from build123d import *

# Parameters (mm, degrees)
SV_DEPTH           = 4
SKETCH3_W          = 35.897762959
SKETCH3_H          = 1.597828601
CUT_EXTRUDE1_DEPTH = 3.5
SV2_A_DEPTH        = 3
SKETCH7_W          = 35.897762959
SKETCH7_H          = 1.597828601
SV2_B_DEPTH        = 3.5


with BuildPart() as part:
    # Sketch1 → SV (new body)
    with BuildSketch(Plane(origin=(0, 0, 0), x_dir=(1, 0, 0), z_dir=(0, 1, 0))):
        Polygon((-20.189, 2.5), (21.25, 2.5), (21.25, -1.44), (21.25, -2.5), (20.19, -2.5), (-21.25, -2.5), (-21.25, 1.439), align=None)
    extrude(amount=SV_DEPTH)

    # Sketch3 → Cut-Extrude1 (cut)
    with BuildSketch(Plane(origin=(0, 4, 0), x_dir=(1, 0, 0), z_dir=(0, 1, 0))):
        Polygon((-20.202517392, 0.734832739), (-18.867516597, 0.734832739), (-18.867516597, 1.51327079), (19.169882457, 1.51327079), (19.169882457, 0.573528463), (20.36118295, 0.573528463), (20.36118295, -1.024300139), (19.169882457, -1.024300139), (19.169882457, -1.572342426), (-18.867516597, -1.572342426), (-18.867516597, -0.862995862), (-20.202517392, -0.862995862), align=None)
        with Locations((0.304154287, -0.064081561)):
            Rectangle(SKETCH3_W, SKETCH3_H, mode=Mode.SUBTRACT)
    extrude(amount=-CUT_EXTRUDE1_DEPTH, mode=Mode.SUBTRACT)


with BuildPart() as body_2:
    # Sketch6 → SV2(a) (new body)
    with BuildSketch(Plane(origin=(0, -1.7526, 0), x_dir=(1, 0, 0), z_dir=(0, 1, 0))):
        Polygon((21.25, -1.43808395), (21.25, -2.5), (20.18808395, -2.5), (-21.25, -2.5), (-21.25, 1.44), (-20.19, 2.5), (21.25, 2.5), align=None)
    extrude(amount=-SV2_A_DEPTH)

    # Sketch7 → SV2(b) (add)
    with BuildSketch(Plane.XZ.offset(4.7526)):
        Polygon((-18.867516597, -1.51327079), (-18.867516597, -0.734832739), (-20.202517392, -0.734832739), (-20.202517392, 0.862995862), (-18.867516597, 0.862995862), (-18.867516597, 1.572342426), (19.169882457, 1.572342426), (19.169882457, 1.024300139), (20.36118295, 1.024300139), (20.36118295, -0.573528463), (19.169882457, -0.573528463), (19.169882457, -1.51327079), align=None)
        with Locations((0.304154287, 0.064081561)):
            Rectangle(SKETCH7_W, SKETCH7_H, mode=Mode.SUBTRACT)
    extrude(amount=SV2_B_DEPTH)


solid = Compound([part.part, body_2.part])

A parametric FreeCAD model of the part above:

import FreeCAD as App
import Part
import Sketcher
Q = App.Units.Quantity

doc = App.newDocument("Part")
params = doc.addObject("Spreadsheet::Sheet", "Params")
for row, (alias, value) in enumerate([
    ("sketch1_height", "5 mm"),
    ("sketch1_width", "42.5 mm"),
    ("pad1_length", "4 mm"),
    ("pocket1_length", "3.5 mm"),
    ("sketch3_height", "5 mm"),
    ("sketch3_width", "42.5 mm"),
    ("sketch3_width2", "41.44 mm"),
    ("pad2_length", "3 mm"),
    ("pad3_length", "3.5 mm"),
], start=1):
    params.set(f"A{row}", alias)
    params.set(f"B{row}", "=" + value)
    params.setAlias(f"B{row}", alias)

body = doc.addObject("PartDesign::Body", "Body")

# Sketch on XZ plane
sketch1 = body.newObject("Sketcher::SketchObject", "Sketch")
sketch1.AttachmentSupport = (doc.getObject("XZ_Plane"), [""])
sketch1.MapMode = "FlatFace"
sketch1.addGeometry([
    Part.LineSegment(App.Vector(21.25, -2.5, 0), App.Vector(-20.189, -2.5, 0)),  # 0
    Part.LineSegment(App.Vector(-20.189, -2.5, 0), App.Vector(-21.25, -1.439, 0)),  # 1
    Part.LineSegment(App.Vector(-21.25, -1.439, 0), App.Vector(-21.25, 2.5, 0)),  # 2
    Part.LineSegment(App.Vector(-21.25, 2.5, 0), App.Vector(21.25, 2.5, 0)),  # 3
    Part.LineSegment(App.Vector(21.25, 2.5, 0), App.Vector(21.25, -2.5, 0)),  # 4
], False)
sketch1.addConstraint([
    Sketcher.Constraint("Coincident", 0, 2, 1, 1),
    Sketcher.Constraint("Coincident", 1, 2, 2, 1),
    Sketcher.Constraint("Coincident", 2, 2, 3, 1),
    Sketcher.Constraint("Coincident", 3, 2, 4, 1),
    Sketcher.Constraint("Coincident", 4, 2, 0, 1),
    Sketcher.Constraint("Horizontal", 0),
    Sketcher.Constraint("Vertical", 2),
    Sketcher.Constraint("Horizontal", 3),
    Sketcher.Constraint("Vertical", 4),
    Sketcher.Constraint("Symmetric", 2, 2, 4, 2, -1, 1),
    Sketcher.Constraint("DistanceY", 4, 2, 4, 1, 5.0),
    Sketcher.Constraint("Angle", 1, Q("135 deg")),
    Sketcher.Constraint("DistanceX", 3, 1, 3, 2, 42.5),
    Sketcher.Constraint("DistanceX", 0, 2, 0, 1, 41.439),
])
sketch1.setExpression("Constraints[10]", "Params.sketch1_height")
sketch1.setExpression("Constraints[12]", "Params.sketch1_width")
pad1 = body.newObject("PartDesign::Pad", "Pad")
pad1.Profile = sketch1
pad1.setExpression("Length", "Params.pad1_length")
pad1.Reversed = True

# Sketch on XZ plane
sketch2 = body.newObject("Sketcher::SketchObject", "Sketch001")
sketch2.AttachmentSupport = (doc.getObject("XZ_Plane"), [""])
sketch2.MapMode = "FlatFace"
sketch2.AttachmentOffset = App.Placement(App.Vector(0, 0, -4), App.Rotation())
sketch2.addGeometry([
    Part.LineSegment(App.Vector(-18.867517, -0.734833, 0), App.Vector(-20.202517, -0.734833, 0)),  # 0
    Part.LineSegment(App.Vector(-20.202517, -0.734833, 0), App.Vector(-20.202517, 0.862996, 0)),  # 1
    Part.LineSegment(App.Vector(-20.202517, 0.862996, 0), App.Vector(-18.867517, 0.862996, 0)),  # 2
    Part.LineSegment(App.Vector(-18.867517, 0.862996, 0), App.Vector(-18.867517, 1.572342, 0)),  # 3
    Part.LineSegment(App.Vector(-18.867517, 1.572342, 0), App.Vector(19.169882, 1.572342, 0)),  # 4
    Part.LineSegment(App.Vector(19.169882, 1.572342, 0), App.Vector(19.169882, 1.0243, 0)),  # 5
    Part.LineSegment(App.Vector(19.169882, 1.0243, 0), App.Vector(20.361183, 1.0243, 0)),  # 6
    Part.LineSegment(App.Vector(20.361183, 1.0243, 0), App.Vector(20.361183, -0.573528, 0)),  # 7
    Part.LineSegment(App.Vector(20.361183, -0.573528, 0), App.Vector(19.169882, -0.573528, 0)),  # 8
    Part.LineSegment(App.Vector(19.169882, -0.573528, 0), App.Vector(19.169882, -1.513271, 0)),  # 9
    Part.LineSegment(App.Vector(19.169882, -1.513271, 0), App.Vector(-18.867517, -1.513271, 0)),  # 10
    Part.LineSegment(App.Vector(-18.867517, -1.513271, 0), App.Vector(-18.867517, -0.734833, 0)),  # 11
    Part.LineSegment(App.Vector(-17.644727, 0.862996, 0), App.Vector(-17.644727, -0.734833, 0)),  # 12
    Part.LineSegment(App.Vector(-17.644727, -0.734833, 0), App.Vector(18.253036, -0.734833, 0)),  # 13
    Part.LineSegment(App.Vector(18.253036, -0.734833, 0), App.Vector(18.253036, 0.862996, 0)),  # 14
    Part.LineSegment(App.Vector(18.253036, 0.862996, 0), App.Vector(-17.644727, 0.862996, 0)),  # 15
], False)
sketch2.addConstraint([
    Sketcher.Constraint("Coincident", 0, 2, 1, 1),
    Sketcher.Constraint("Coincident", 1, 2, 2, 1),
    Sketcher.Constraint("Coincident", 2, 2, 3, 1),
    Sketcher.Constraint("Coincident", 3, 2, 4, 1),
    Sketcher.Constraint("Coincident", 4, 2, 5, 1),
    Sketcher.Constraint("Coincident", 5, 2, 6, 1),
    Sketcher.Constraint("Coincident", 6, 2, 7, 1),
    Sketcher.Constraint("Coincident", 7, 2, 8, 1),
    Sketcher.Constraint("Coincident", 8, 2, 9, 1),
    Sketcher.Constraint("Coincident", 9, 2, 10, 1),
    Sketcher.Constraint("Coincident", 10, 2, 11, 1),
    Sketcher.Constraint("Coincident", 11, 2, 0, 1),
    Sketcher.Constraint("Coincident", 12, 2, 13, 1),
    Sketcher.Constraint("Coincident", 13, 2, 14, 1),
    Sketcher.Constraint("Coincident", 14, 2, 15, 1),
    Sketcher.Constraint("Coincident", 15, 2, 12, 1),
    Sketcher.Constraint("Horizontal", 0),
    Sketcher.Constraint("Vertical", 1),
    Sketcher.Constraint("Horizontal", 2),
    Sketcher.Constraint("Vertical", 3),
    Sketcher.Constraint("Horizontal", 4),
    Sketcher.Constraint("Vertical", 5),
    Sketcher.Constraint("Horizontal", 6),
    Sketcher.Constraint("Vertical", 7),
    Sketcher.Constraint("Horizontal", 8),
    Sketcher.Constraint("Vertical", 9),
    Sketcher.Constraint("Horizontal", 10),
    Sketcher.Constraint("Vertical", 11),
    Sketcher.Constraint("Vertical", 12),
    Sketcher.Constraint("Horizontal", 13),
    Sketcher.Constraint("Vertical", 14),
    Sketcher.Constraint("Horizontal", 15),
    Sketcher.Constraint("Horizontal", 11, 2, 12, 2),
    Sketcher.Constraint("Horizontal", 2, 2, 14, 2),
    Sketcher.Constraint("Vertical", 5, 2, 8, 2),
    Sketcher.Constraint("Vertical", 3, 2, 10, 2),
    Sketcher.Constraint("Equal", 1, 7),
    Sketcher.Constraint("DistanceX", 0, 2, 0, 1, 1.335001),
    Sketcher.Constraint("DistanceX", 4, 1, 4, 2, 38.037399),
    Sketcher.Constraint("DistanceX", 6, 1, 6, 2, 1.1913),
    Sketcher.Constraint("DistanceY", 1, 1, 1, 2, 1.597829),
    Sketcher.Constraint("DistanceY", 11, 1, 11, 2, 0.778438),
    Sketcher.Constraint("DistanceY", -1, 1, 5, 2, 1.0243),
    Sketcher.Constraint("DistanceX", 13, 1, 13, 2, 35.897763),
    Sketcher.Constraint("DistanceY", 3, 1, 3, 2, 0.709347),
    Sketcher.Constraint("DistanceY", 5, 2, 5, 1, 0.548042),
    Sketcher.Constraint("DistanceX", 11, 2, 12, 2, 1.222789),
    Sketcher.Constraint("DistanceX", 0, 2, -1, 1, 20.202517),
])
pocket1 = body.newObject("PartDesign::Pocket", "Pocket")
pocket1.Profile = sketch2
pocket1.setExpression("Length", "Params.pocket1_length")
pocket1.Reversed = True
body2 = doc.addObject("PartDesign::Body", "Body001")

# Sketch on XZ plane
sketch3 = body2.newObject("Sketcher::SketchObject", "Sketch002")
sketch3.AttachmentSupport = (doc.getObject("XZ_Plane001"), [""])
sketch3.MapMode = "FlatFace"
sketch3.AttachmentOffset = App.Placement(App.Vector(0, 0, 1.7526), App.Rotation())
sketch3.addGeometry([
    Part.LineSegment(App.Vector(21.25, 2.5, 0), App.Vector(21.25, -2.5, 0)),  # 0
    Part.LineSegment(App.Vector(21.25, -2.5, 0), App.Vector(-20.19, -2.5, 0)),  # 1
    Part.LineSegment(App.Vector(-20.19, -2.5, 0), App.Vector(-21.25, -1.44, 0)),  # 2
    Part.LineSegment(App.Vector(-21.25, -1.44, 0), App.Vector(-21.25, 2.5, 0)),  # 3
    Part.LineSegment(App.Vector(-21.25, 2.5, 0), App.Vector(21.25, 2.5, 0)),  # 4
], False)
sketch3.addConstraint([
    Sketcher.Constraint("Coincident", 0, 2, 1, 1),
    Sketcher.Constraint("Coincident", 1, 2, 2, 1),
    Sketcher.Constraint("Coincident", 2, 2, 3, 1),
    Sketcher.Constraint("Coincident", 3, 2, 4, 1),
    Sketcher.Constraint("Coincident", 4, 2, 0, 1),
    Sketcher.Constraint("Vertical", 0),
    Sketcher.Constraint("Horizontal", 1),
    Sketcher.Constraint("Vertical", 3),
    Sketcher.Constraint("Horizontal", 4),
    Sketcher.Constraint("Symmetric", 0, 2, 3, 2, -1, 1),
    Sketcher.Constraint("DistanceY", 0, 2, 0, 1, 5.0),
    Sketcher.Constraint("Angle", 2, Q("135 deg")),
    Sketcher.Constraint("DistanceX", 4, 1, 4, 2, 42.5),
    Sketcher.Constraint("DistanceX", 1, 2, 1, 1, 41.44),
])
sketch3.setExpression("Constraints[10]", "Params.sketch3_height")
sketch3.setExpression("Constraints[12]", "Params.sketch3_width")
sketch3.setExpression("Constraints[13]", "Params.sketch3_width2")
pad2 = body2.newObject("PartDesign::Pad", "Pad001")
pad2.Profile = sketch3
pad2.setExpression("Length", "Params.pad2_length")

# Sketch on XZ plane
sketch4 = body2.newObject("Sketcher::SketchObject", "Sketch003")
sketch4.AttachmentSupport = (doc.getObject("XZ_Plane001"), [""])
sketch4.MapMode = "FlatFace"
sketch4.AttachmentOffset = App.Placement(App.Vector(0, 0, 4.7526), App.Rotation())
sketch4.addGeometry([
    Part.LineSegment(App.Vector(-18.867517, -0.734833, 0), App.Vector(-18.867517, -1.513271, 0)),  # 0
    Part.LineSegment(App.Vector(-18.867517, -1.513271, 0), App.Vector(19.169882, -1.513271, 0)),  # 1
    Part.LineSegment(App.Vector(19.169882, -1.513271, 0), App.Vector(19.169882, -0.573528, 0)),  # 2
    Part.LineSegment(App.Vector(19.169882, -0.573528, 0), App.Vector(20.361183, -0.573528, 0)),  # 3
    Part.LineSegment(App.Vector(20.361183, -0.573528, 0), App.Vector(20.361183, 1.0243, 0)),  # 4
    Part.LineSegment(App.Vector(20.361183, 1.0243, 0), App.Vector(19.169882, 1.0243, 0)),  # 5
    Part.LineSegment(App.Vector(19.169882, 1.0243, 0), App.Vector(19.169882, 1.572342, 0)),  # 6
    Part.LineSegment(App.Vector(19.169882, 1.572342, 0), App.Vector(-18.867517, 1.572342, 0)),  # 7
    Part.LineSegment(App.Vector(-18.867517, 1.572342, 0), App.Vector(-18.867517, 0.862996, 0)),  # 8
    Part.LineSegment(App.Vector(-18.867517, 0.862996, 0), App.Vector(-20.202517, 0.862996, 0)),  # 9
    Part.LineSegment(App.Vector(-20.202517, 0.862996, 0), App.Vector(-20.202517, -0.734833, 0)),  # 10
    Part.LineSegment(App.Vector(-20.202517, -0.734833, 0), App.Vector(-18.867517, -0.734833, 0)),  # 11
    Part.LineSegment(App.Vector(-17.644727, -0.734833, 0), App.Vector(-17.644727, 0.862996, 0)),  # 12
    Part.LineSegment(App.Vector(-17.644727, 0.862996, 0), App.Vector(18.253036, 0.862996, 0)),  # 13
    Part.LineSegment(App.Vector(18.253036, 0.862996, 0), App.Vector(18.253036, -0.734833, 0)),  # 14
    Part.LineSegment(App.Vector(18.253036, -0.734833, 0), App.Vector(-17.644727, -0.734833, 0)),  # 15
], False)
sketch4.addConstraint([
    Sketcher.Constraint("Coincident", 0, 2, 1, 1),
    Sketcher.Constraint("Coincident", 1, 2, 2, 1),
    Sketcher.Constraint("Coincident", 2, 2, 3, 1),
    Sketcher.Constraint("Coincident", 3, 2, 4, 1),
    Sketcher.Constraint("Coincident", 4, 2, 5, 1),
    Sketcher.Constraint("Coincident", 5, 2, 6, 1),
    Sketcher.Constraint("Coincident", 6, 2, 7, 1),
    Sketcher.Constraint("Coincident", 7, 2, 8, 1),
    Sketcher.Constraint("Coincident", 8, 2, 9, 1),
    Sketcher.Constraint("Coincident", 9, 2, 10, 1),
    Sketcher.Constraint("Coincident", 10, 2, 11, 1),
    Sketcher.Constraint("Coincident", 11, 2, 0, 1),
    Sketcher.Constraint("Coincident", 12, 2, 13, 1),
    Sketcher.Constraint("Coincident", 13, 2, 14, 1),
    Sketcher.Constraint("Coincident", 14, 2, 15, 1),
    Sketcher.Constraint("Coincident", 15, 2, 12, 1),
    Sketcher.Constraint("Vertical", 0),
    Sketcher.Constraint("Horizontal", 1),
    Sketcher.Constraint("Vertical", 2),
    Sketcher.Constraint("Horizontal", 3),
    Sketcher.Constraint("Vertical", 4),
    Sketcher.Constraint("Horizontal", 5),
    Sketcher.Constraint("Vertical", 6),
    Sketcher.Constraint("Horizontal", 7),
    Sketcher.Constraint("Vertical", 8),
    Sketcher.Constraint("Horizontal", 9),
    Sketcher.Constraint("Vertical", 10),
    Sketcher.Constraint("Horizontal", 11),
    Sketcher.Constraint("Vertical", 12),
    Sketcher.Constraint("Horizontal", 13),
    Sketcher.Constraint("Vertical", 14),
    Sketcher.Constraint("Horizontal", 15),
    Sketcher.Constraint("Horizontal", 9, 2, 12, 2),
    Sketcher.Constraint("Horizontal", 11, 2, 14, 2),
    Sketcher.Constraint("Vertical", 2, 2, 5, 2),
    Sketcher.Constraint("Vertical", 0, 2, 7, 2),
    Sketcher.Constraint("Equal", 4, 10),
    Sketcher.Constraint("DistanceX", 9, 2, 9, 1, 1.335001),
    Sketcher.Constraint("DistanceX", 1, 1, 1, 2, 38.037399),
    Sketcher.Constraint("DistanceX", 3, 1, 3, 2, 1.1913),
    Sketcher.Constraint("DistanceY", 0, 2, 0, 1, 0.778438),
    Sketcher.Constraint("DistanceY", 4, 1, 4, 2, 1.597829),
    Sketcher.Constraint("DistanceY", -1, 1, 4, 2, 1.0243),
    Sketcher.Constraint("DistanceX", 13, 1, 13, 2, 35.897763),
    Sketcher.Constraint("DistanceY", 2, 1, 2, 2, 0.939742),
    Sketcher.Constraint("DistanceY", 6, 1, 6, 2, 0.548042),
    Sketcher.Constraint("DistanceX", 8, 2, 12, 2, 1.222789),
    Sketcher.Constraint("DistanceX", 0, 2, -1, 1, 18.867517),
])
pad3 = body2.newObject("PartDesign::Pad", "Pad002")
pad3.Profile = sketch4
pad3.setExpression("Length", "Params.pad3_length")

doc.recompute()
